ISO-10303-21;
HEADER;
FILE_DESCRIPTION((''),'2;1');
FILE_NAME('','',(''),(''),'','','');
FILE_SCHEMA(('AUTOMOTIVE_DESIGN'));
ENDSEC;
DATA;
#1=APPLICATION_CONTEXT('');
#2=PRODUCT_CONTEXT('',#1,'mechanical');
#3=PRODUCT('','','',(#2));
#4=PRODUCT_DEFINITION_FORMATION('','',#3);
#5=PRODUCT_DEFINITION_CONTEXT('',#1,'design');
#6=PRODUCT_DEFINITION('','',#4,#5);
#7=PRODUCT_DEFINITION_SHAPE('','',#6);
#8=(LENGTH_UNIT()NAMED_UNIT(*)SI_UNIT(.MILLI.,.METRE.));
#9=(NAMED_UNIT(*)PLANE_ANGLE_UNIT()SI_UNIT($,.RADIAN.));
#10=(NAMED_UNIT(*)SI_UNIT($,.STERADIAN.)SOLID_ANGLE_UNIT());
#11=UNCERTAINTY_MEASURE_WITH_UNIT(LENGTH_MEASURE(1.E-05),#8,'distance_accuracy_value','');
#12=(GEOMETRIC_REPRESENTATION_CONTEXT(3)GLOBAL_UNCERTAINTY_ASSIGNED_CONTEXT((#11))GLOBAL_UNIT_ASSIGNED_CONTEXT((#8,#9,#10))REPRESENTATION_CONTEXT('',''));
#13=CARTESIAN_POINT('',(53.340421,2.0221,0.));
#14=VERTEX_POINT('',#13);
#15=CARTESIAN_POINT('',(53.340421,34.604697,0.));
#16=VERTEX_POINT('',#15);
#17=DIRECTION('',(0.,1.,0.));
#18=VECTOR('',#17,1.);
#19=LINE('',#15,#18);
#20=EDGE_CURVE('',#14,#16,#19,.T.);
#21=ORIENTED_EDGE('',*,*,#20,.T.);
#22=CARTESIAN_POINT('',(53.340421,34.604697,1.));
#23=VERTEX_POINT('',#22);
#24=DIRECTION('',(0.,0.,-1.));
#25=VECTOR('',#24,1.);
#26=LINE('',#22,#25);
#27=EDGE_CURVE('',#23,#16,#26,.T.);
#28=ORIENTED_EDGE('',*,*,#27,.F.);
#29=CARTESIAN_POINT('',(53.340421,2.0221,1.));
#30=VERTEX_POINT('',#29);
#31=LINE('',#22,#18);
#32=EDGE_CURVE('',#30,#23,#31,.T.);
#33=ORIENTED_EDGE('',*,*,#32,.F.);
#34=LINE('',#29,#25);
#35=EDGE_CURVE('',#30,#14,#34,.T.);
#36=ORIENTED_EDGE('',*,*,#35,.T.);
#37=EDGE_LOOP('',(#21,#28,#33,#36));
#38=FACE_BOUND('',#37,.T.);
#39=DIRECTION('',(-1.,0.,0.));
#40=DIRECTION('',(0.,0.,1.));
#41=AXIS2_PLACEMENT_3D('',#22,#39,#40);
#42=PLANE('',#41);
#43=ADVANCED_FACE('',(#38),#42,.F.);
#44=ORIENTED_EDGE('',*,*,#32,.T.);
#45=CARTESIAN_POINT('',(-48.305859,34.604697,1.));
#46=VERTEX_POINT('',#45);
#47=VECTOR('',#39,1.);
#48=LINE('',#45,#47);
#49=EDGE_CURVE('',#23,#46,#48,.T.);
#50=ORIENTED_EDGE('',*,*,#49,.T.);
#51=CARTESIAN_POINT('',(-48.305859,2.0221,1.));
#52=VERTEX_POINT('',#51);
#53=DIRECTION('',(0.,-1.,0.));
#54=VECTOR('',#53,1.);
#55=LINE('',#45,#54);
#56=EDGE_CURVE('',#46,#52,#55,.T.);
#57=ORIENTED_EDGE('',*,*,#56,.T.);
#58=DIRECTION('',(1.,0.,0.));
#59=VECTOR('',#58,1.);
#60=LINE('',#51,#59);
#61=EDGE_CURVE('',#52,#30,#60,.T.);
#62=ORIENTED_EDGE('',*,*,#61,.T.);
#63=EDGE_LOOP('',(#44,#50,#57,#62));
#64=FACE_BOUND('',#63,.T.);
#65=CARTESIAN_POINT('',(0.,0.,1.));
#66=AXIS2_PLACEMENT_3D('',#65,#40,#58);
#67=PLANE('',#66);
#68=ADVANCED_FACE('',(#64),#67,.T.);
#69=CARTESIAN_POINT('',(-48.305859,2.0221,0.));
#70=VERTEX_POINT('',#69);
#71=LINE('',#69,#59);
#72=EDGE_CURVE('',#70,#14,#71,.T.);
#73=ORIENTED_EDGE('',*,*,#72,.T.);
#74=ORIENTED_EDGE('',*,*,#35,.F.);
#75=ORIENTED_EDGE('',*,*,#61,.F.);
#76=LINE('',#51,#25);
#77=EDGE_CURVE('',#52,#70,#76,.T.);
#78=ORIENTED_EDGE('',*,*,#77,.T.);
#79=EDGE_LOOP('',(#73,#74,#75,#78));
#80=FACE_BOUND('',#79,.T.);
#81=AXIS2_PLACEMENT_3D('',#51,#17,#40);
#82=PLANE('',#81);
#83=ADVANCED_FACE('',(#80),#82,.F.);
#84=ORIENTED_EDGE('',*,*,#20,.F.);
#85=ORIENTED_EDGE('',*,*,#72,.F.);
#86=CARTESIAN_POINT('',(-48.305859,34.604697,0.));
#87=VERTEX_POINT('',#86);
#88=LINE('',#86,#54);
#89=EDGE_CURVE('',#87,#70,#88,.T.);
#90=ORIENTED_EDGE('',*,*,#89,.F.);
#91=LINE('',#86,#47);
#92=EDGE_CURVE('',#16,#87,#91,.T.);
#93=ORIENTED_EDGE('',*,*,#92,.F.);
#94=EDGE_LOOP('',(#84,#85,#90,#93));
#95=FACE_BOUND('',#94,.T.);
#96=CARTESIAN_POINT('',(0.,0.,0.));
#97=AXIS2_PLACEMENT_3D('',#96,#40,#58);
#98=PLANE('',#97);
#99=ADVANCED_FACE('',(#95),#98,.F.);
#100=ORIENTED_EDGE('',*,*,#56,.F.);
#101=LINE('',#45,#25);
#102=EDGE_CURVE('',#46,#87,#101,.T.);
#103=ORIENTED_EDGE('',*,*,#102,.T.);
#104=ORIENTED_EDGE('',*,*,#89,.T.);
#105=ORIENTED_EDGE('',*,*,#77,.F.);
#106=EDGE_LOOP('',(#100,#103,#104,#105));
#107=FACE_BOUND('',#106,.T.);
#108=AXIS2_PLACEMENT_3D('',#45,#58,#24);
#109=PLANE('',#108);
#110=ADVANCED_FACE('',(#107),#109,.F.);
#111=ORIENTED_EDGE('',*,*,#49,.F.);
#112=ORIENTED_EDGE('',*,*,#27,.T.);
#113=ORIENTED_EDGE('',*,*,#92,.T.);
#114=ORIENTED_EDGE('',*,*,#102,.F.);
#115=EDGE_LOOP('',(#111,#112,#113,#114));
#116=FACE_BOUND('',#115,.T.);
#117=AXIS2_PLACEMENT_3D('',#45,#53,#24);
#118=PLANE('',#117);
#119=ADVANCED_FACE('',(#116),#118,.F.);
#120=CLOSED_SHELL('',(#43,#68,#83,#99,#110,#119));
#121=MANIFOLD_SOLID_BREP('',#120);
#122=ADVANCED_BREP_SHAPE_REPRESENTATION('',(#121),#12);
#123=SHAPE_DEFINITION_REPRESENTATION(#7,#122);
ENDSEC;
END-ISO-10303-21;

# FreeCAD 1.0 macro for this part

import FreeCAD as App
import Part
import Sketcher

V = App.Vector


def add_polygon(sketch, points):
    """Adds a closed chain of lines whose ends are joined by coincident constraints."""
    first, n = sketch.GeometryCount, len(points)
    for a, b in zip(points, points[1:] + points[:1]):
        sketch.addGeometry(Part.LineSegment(App.Vector(*a, 0), App.Vector(*b, 0)), False)
    for i in range(n):
        sketch.addConstraint(Sketcher.Constraint("Coincident", first + i, 2, first + (i + 1) % n, 1))

doc = App.newDocument("Part")
body = doc.addObject("PartDesign::Body", "Body")

# Sketch on XY plane
sketch1 = doc.addObject("Sketcher::SketchObject", "Sketch")
body.addObject(sketch1)
sketch1.AttachmentSupport = (doc.XY_Plane, [""])
sketch1.MapMode = "FlatFace"
add_polygon(sketch1, [(-48, 35), (-48, 2), (53, 2), (53, 35)])  # lines 0-3
sketch1.addConstraint(Sketcher.Constraint("Vertical", 0))
sketch1.addConstraint(Sketcher.Constraint("Horizontal", 1))
sketch1.addConstraint(Sketcher.Constraint("Vertical", 2))
sketch1.addConstraint(Sketcher.Constraint("Horizontal", 3))
sketch1.addConstraint(Sketcher.Constraint("DistanceX", 1, 1, 1, 2, 101.64628))
sketch1.addConstraint(Sketcher.Constraint("DistanceY", -1, 1, 0, 2, 2.0221))
sketch1.addConstraint(Sketcher.Constraint("DistanceY", 0, 2, 0, 1, 32.582597))
sketch1.addConstraint(Sketcher.Constraint("DistanceX", 0, 2, -1, 1, 48.305859))
pad1 = doc.addObject("PartDesign::Pad", "Pad")
body.addObject(pad1)
pad1.Profile = sketch1
pad1.Length = 1

doc.recompute()
